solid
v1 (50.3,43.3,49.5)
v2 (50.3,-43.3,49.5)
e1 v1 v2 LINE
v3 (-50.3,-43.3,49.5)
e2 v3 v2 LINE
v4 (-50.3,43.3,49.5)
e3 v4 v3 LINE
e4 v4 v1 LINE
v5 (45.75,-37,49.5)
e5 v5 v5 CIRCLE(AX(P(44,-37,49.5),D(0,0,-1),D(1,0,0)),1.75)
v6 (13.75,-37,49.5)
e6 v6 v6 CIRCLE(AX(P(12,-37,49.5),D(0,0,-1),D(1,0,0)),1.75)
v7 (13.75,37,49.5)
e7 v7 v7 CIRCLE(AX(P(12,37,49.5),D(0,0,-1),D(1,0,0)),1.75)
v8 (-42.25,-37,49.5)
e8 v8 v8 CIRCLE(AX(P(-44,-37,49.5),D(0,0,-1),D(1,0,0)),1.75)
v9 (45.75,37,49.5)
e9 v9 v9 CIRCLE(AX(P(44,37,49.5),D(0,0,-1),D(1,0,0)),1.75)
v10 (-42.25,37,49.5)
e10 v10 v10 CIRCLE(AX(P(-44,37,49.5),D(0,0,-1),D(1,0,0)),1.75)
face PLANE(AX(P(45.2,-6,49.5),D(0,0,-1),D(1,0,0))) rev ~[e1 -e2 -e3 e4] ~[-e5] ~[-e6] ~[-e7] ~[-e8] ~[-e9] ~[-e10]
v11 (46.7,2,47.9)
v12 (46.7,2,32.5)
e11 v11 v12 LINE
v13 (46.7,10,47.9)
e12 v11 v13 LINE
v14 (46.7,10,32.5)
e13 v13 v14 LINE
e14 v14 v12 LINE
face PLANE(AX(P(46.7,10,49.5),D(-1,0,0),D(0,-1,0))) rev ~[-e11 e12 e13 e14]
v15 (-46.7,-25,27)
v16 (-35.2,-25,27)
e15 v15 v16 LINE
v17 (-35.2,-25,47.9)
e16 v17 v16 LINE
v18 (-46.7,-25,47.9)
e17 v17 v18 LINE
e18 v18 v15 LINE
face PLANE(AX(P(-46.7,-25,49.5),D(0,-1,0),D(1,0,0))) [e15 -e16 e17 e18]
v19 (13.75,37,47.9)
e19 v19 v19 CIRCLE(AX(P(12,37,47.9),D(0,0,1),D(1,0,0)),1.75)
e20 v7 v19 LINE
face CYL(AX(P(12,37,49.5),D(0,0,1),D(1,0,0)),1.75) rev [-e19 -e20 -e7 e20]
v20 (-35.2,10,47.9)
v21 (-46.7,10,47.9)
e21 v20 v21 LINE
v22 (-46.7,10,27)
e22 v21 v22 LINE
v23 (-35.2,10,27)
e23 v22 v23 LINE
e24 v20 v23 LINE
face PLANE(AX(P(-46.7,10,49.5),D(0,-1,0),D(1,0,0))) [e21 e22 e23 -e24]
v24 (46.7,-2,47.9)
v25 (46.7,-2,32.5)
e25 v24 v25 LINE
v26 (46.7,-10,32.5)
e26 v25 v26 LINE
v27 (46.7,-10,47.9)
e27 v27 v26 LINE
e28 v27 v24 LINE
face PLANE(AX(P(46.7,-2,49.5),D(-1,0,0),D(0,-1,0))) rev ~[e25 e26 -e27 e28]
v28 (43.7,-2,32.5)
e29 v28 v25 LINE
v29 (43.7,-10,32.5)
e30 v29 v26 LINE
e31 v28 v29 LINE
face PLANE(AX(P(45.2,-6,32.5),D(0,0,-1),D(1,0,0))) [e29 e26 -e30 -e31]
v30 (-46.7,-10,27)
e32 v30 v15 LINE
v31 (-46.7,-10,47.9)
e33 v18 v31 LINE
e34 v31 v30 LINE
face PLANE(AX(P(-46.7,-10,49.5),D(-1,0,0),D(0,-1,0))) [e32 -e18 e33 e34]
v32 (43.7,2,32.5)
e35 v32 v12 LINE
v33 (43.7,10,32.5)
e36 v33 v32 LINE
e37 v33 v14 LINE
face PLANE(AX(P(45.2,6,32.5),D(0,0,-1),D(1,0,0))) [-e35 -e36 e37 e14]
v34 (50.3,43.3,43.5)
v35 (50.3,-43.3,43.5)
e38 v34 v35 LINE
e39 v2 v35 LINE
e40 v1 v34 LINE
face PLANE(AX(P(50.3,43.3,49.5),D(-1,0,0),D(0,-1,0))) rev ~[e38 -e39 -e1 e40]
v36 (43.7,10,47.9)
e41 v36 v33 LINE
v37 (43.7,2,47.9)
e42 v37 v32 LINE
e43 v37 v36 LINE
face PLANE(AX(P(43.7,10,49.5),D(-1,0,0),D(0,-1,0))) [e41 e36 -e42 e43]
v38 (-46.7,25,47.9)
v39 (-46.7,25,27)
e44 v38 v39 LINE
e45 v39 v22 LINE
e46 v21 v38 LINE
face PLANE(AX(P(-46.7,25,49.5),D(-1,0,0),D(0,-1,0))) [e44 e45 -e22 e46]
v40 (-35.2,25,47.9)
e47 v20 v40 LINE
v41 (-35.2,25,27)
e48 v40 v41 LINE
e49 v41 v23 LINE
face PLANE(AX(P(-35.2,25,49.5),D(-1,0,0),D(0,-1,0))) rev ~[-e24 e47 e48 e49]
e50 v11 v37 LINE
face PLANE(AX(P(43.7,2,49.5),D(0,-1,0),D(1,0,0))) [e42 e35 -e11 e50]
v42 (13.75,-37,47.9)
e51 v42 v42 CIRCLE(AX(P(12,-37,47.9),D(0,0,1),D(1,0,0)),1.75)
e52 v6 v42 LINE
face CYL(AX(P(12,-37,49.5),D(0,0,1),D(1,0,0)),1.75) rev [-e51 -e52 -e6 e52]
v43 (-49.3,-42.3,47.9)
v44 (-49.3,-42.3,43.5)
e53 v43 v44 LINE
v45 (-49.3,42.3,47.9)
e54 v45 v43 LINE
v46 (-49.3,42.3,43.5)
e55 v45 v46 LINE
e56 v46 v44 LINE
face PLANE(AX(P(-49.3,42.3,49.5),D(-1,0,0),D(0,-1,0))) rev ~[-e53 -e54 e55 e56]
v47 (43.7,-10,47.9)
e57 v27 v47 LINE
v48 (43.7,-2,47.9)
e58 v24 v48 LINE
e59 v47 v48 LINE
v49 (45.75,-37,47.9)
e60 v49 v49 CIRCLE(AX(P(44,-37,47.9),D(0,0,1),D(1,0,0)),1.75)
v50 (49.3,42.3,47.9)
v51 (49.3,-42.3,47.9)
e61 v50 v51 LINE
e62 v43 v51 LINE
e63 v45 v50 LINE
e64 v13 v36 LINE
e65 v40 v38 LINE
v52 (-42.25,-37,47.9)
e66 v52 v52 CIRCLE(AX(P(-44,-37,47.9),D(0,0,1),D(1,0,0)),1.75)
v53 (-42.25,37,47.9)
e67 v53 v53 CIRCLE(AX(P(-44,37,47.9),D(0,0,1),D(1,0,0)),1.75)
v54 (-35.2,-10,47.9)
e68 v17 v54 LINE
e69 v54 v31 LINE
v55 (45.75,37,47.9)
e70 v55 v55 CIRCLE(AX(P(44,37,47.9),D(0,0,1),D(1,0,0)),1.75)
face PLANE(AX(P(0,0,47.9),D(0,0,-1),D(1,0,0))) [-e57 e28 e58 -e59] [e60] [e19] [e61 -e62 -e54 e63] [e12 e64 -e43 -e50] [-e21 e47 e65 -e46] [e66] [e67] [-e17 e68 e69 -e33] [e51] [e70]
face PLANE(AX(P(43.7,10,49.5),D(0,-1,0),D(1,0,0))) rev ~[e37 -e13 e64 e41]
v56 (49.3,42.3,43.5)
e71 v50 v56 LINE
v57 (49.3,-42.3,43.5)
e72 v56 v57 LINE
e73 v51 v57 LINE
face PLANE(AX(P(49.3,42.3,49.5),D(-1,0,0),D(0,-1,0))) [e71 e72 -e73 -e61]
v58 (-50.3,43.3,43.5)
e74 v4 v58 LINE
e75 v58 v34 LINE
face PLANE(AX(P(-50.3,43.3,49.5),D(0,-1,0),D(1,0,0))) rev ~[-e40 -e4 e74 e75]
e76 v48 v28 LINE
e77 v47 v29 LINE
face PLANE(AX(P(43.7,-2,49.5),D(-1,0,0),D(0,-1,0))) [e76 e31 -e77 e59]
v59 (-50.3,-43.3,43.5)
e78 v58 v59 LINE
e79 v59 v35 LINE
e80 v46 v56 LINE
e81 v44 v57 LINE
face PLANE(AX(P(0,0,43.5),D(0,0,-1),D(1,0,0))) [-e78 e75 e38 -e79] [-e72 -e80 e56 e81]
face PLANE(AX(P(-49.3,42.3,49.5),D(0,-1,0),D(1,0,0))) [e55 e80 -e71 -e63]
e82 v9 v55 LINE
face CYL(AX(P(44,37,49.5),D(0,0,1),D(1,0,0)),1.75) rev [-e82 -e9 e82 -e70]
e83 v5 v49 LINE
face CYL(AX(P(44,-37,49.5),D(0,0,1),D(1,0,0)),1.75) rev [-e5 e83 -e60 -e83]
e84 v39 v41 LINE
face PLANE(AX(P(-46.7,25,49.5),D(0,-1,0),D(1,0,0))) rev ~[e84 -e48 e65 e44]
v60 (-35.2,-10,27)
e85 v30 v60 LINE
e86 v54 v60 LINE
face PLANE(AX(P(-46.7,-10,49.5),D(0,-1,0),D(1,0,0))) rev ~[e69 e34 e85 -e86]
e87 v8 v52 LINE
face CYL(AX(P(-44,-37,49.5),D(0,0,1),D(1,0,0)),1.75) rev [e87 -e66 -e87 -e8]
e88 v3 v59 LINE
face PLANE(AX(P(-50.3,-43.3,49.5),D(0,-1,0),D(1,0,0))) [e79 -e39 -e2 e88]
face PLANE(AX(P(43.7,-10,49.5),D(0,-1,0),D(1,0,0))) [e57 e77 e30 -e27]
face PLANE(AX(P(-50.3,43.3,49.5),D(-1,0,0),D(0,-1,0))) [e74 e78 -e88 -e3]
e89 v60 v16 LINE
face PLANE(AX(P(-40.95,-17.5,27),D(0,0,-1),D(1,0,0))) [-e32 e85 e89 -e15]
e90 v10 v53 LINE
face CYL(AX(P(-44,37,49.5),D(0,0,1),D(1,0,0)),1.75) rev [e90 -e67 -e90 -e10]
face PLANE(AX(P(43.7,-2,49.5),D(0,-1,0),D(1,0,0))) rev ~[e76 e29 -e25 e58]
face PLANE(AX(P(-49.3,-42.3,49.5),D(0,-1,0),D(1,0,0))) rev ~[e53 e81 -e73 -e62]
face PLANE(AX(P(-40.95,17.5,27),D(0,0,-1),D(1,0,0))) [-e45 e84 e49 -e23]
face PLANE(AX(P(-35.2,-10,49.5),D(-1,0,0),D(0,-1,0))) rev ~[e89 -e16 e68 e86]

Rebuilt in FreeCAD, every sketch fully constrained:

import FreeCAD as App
import Part
import Sketcher
from FreeCAD import Vector

doc = App.newDocument("Part")
body = doc.addObject("PartDesign::Body", "Body")

# Sketch on XY plane
sketch1 = doc.addObject("Sketcher::SketchObject", "Sketch")
body.addObject(sketch1)
sketch1.AttachmentSupport = (doc.XY_Plane, [""])
sketch1.MapMode = "FlatFace"
sketch1.addGeometry([
    Part.LineSegment(Vector(-49, 42, 0), Vector(-49, -42, 0)),
    Part.LineSegment(Vector(-49, -42, 0), Vector(49, -42, 0)),
    Part.LineSegment(Vector(49, -42, 0), Vector(49, 42, 0)),
    Part.LineSegment(Vector(49, 42, 0), Vector(-49, 42, 0)),
], False)
sketch1.addConstraint([
    Sketcher.Constraint("Coincident", 0, 2, 1, 1),
    Sketcher.Constraint("Coincident", 1, 2, 2, 1),
    Sketcher.Constraint("Coincident", 2, 2, 3, 1),
    Sketcher.Constraint("Coincident", 3, 2, 0, 1),
    Sketcher.Constraint("Vertical", 0),
    Sketcher.Constraint("Horizontal", 1),
    Sketcher.Constraint("Vertical", 2),
    Sketcher.Constraint("Horizontal", 3),
    Sketcher.Constraint("Symmetric", 0, 2, 2, 2, -1, 1),
    Sketcher.Constraint("DistanceX", 1, 1, 1, 2, 98.6),
    Sketcher.Constraint("DistanceY", 0, 2, 0, 1, 84.6),
])
pad1 = doc.addObject("PartDesign::Pad", "Pad")
body.addObject(pad1)
pad1.Profile = sketch1
pad1.Length = 1.6

# Sketch on XY plane
sketch2 = doc.addObject("Sketcher::SketchObject", "Sketch001")
body.addObject(sketch2)
sketch2.AttachmentSupport = (doc.XY_Plane, [""])
sketch2.MapMode = "FlatFace"
sketch2.addGeometry([
    Part.LineSegment(Vector(-50, 43, 0), Vector(-50, -43, 0)),  # 0
    Part.LineSegment(Vector(-50, -43, 0), Vector(50, -43, 0)),  # 1
    Part.LineSegment(Vector(50, -43, 0), Vector(50, 43, 0)),  # 2
    Part.LineSegment(Vector(50, 43, 0), Vector(-50, 43, 0)),  # 3
    Part.LineSegment(Vector(49, -42, 0), Vector(-49, -42, 0)),  # 4
    Part.LineSegment(Vector(-49, -42, 0), Vector(-49, 42, 0)),  # 5
    Part.LineSegment(Vector(-49, 42, 0), Vector(49, 42, 0)),  # 6
    Part.LineSegment(Vector(49, 42, 0), Vector(49, -42, 0)),  # 7
], False)
sketch2.addConstraint([
    Sketcher.Constraint("Coincident", 0, 2, 1, 1),
    Sketcher.Constraint("Coincident", 1, 2, 2, 1),
    Sketcher.Constraint("Coincident", 2, 2, 3, 1),
    Sketcher.Constraint("Coincident", 3, 2, 0, 1),
    Sketcher.Constraint("Coincident", 4, 2, 5, 1),
    Sketcher.Constraint("Coincident", 5, 2, 6, 1),
    Sketcher.Constraint("Coincident", 6, 2, 7, 1),
    Sketcher.Constraint("Coincident", 7, 2, 4, 1),
    Sketcher.Constraint("Vertical", 0),
    Sketcher.Constraint("Horizontal", 1),
    Sketcher.Constraint("Vertical", 2),
    Sketcher.Constraint("Horizontal", 3),
    Sketcher.Constraint("Horizontal", 4),
    Sketcher.Constraint("Vertical", 5),
    Sketcher.Constraint("Horizontal", 6),
    Sketcher.Constraint("Vertical", 7),
    Sketcher.Constraint("Symmetric", 0, 2, 2, 2, -1, 1),
    Sketcher.Constraint("Symmetric", 4, 2, 6, 2, -1, 1),
    Sketcher.Constraint("DistanceX", 1, 1, 1, 2, 100.6),
    Sketcher.Constraint("DistanceX", 4, 2, 4, 1, 98.6),
    Sketcher.Constraint("DistanceY", 0, 2, 0, 1, 86.6),
    Sketcher.Constraint("DistanceY", 5, 1, 5, 2, 84.6),
])
pad2 = doc.addObject("PartDesign::Pad", "Pad001")
body.addObject(pad2)
pad2.Profile = sketch2
pad2.Length = 6

# Sketch on XY plane
sketch3 = doc.addObject("Sketcher::SketchObject", "Sketch002")
body.addObject(sketch3)
sketch3.AttachmentSupport = (doc.XY_Plane, [""])
sketch3.MapMode = "FlatFace"
sketch3.addGeometry([
    Part.LineSegment(Vector(-47, 25, 0), Vector(-47, 10, 0)),  # 0
    Part.LineSegment(Vector(-47, 10, 0), Vector(-35, 10, 0)),  # 1
    Part.LineSegment(Vector(-35, 10, 0), Vector(-35, 25, 0)),  # 2
    Part.LineSegment(Vector(-35, 25, 0), Vector(-47, 25, 0)),  # 3
    Part.LineSegment(Vector(-47, -10, 0), Vector(-47, -25, 0)),  # 4
    Part.LineSegment(Vector(-47, -25, 0), Vector(-35, -25, 0)),  # 5
    Part.LineSegment(Vector(-35, -25, 0), Vector(-35, -10, 0)),  # 6
    Part.LineSegment(Vector(-35, -10, 0), Vector(-47, -10, 0)),  # 7
], False)
sketch3.addConstraint([
    Sketcher.Constraint("Coincident", 0, 2, 1, 1),
    Sketcher.Constraint("Coincident", 1, 2, 2, 1),
    Sketcher.Constraint("Coincident", 2, 2, 3, 1),
    Sketcher.Constraint("Coincident", 3, 2, 0, 1),
    Sketcher.Constraint("Coincident", 4, 2, 5, 1),
    Sketcher.Constraint("Coincident", 5, 2, 6, 1),
    Sketcher.Constraint("Coincident", 6, 2, 7, 1),
    Sketcher.Constraint("Coincident", 7, 2, 4, 1),
    Sketcher.Constraint("Vertical", 0),
    Sketcher.Constraint("Horizontal", 1),
    Sketcher.Constraint("Vertical", 2),
    Sketcher.Constraint("Horizontal", 3),
    Sketcher.Constraint("Vertical", 4),
    Sketcher.Constraint("Horizontal", 5),
    Sketcher.Constraint("Vertical", 6),
    Sketcher.Constraint("Horizontal", 7),
    Sketcher.Constraint("Symmetric", 3, 2, 4, 2, -1),
    Sketcher.Constraint("Symmetric", 1, 2, 6, 2, -1),
    Sketcher.Constraint("DistanceY", 0, 2, 0, 1, 15.0),
    Sketcher.Constraint("DistanceX", 1, 1, 1, 2, 11.5),
    Sketcher.Constraint("DistanceY", -1, 1, 0, 2, 10.0),
    Sketcher.Constraint("DistanceX", 0, 2, -1, 1, 46.7),
])
pad3 = doc.addObject("PartDesign::Pad", "Pad002")
body.addObject(pad3)
pad3.Profile = sketch3
pad3.Length = 22.5

# Sketch on XY plane
sketch4 = doc.addObject("Sketcher::SketchObject", "Sketch003")
body.addObject(sketch4)
sketch4.AttachmentSupport = (doc.XY_Plane, [""])
sketch4.MapMode = "FlatFace"
sketch4.addGeometry([
    Part.LineSegment(Vector(43.7, 10, 0), Vector(43.7, 2, 0)),  # 0
    Part.LineSegment(Vector(43.7, 2, 0), Vector(46.7, 2, 0)),  # 1
    Part.LineSegment(Vector(46.7, 2, 0), Vector(46.7, 10, 0)),  # 2
    Part.LineSegment(Vector(46.7, 10, 0), Vector(43.7, 10, 0)),  # 3
    Part.LineSegment(Vector(43.7, -2, 0), Vector(43.7, -10, 0)),  # 4
    Part.LineSegment(Vector(43.7, -10, 0), Vector(46.7, -10, 0)),  # 5
    Part.LineSegment(Vector(46.7, -10, 0), Vector(46.7, -2, 0)),  # 6
    Part.LineSegment(Vector(46.7, -2, 0), Vector(43.7, -2, 0)),  # 7
], False)
sketch4.addConstraint([
    Sketcher.Constraint("Coincident", 0, 2, 1, 1),
    Sketcher.Constraint("Coincident", 1, 2, 2, 1),
    Sketcher.Constraint("Coincident", 2, 2, 3, 1),
    Sketcher.Constraint("Coincident", 3, 2, 0, 1),
    Sketcher.Constraint("Coincident", 4, 2, 5, 1),
    Sketcher.Constraint("Coincident", 5, 2, 6, 1),
    Sketcher.Constraint("Coincident", 6, 2, 7, 1),
    Sketcher.Constraint("Coincident", 7, 2, 4, 1),
    Sketcher.Constraint("Vertical", 0),
    Sketcher.Constraint("Horizontal", 1),
    Sketcher.Constraint("Vertical", 2),
    Sketcher.Constraint("Horizontal", 3),
    Sketcher.Constraint("Vertical", 4),
    Sketcher.Constraint("Horizontal", 5),
    Sketcher.Constraint("Vertical", 6),
    Sketcher.Constraint("Horizontal", 7),
    Sketcher.Constraint("Symmetric", 3, 2, 4, 2, -1),
    Sketcher.Constraint("Symmetric", 1, 2, 6, 2, -1),
    Sketcher.Constraint("DistanceX", 1, 1, 1, 2, 3.0),
    Sketcher.Constraint("DistanceY", 0, 2, 0, 1, 8.0),
    Sketcher.Constraint("DistanceY", -1, 1, 0, 2, 2.0),
    Sketcher.Constraint("DistanceX", -1, 1, 0, 2, 43.7),
])
pad4 = doc.addObject("PartDesign::Pad", "Pad003")
body.addObject(pad4)
pad4.Profile = sketch4
pad4.Length = 17

# Sketch on XY plane
sketch5 = doc.addObject("Sketcher::SketchObject", "Sketch004")
body.addObject(sketch5)
sketch5.AttachmentSupport = (doc.XY_Plane, [""])
sketch5.MapMode = "FlatFace"
sketch5.addGeometry([
    Part.Circle(Vector(-44, 37, 0), Vector(0, 0, 1), 1.8),  # 0
    Part.Circle(Vector(12, 37, 0), Vector(0, 0, 1), 1.8),  # 1
    Part.Circle(Vector(44, 37, 0), Vector(0, 0, 1), 1.8),  # 2
    Part.Circle(Vector(44, -37, 0), Vector(0, 0, 1), 1.8),  # 3
    Part.Circle(Vector(12, -37, 0), Vector(0, 0, 1), 1.8),  # 4
    Part.Circle(Vector(-44, -37, 0), Vector(0, 0, 1), 1.8),  # 5
], False)
sketch5.addConstraint([
    Sketcher.Constraint("Equal", 0, 1),
    Sketcher.Constraint("Equal", 1, 2),
    Sketcher.Constraint("Equal", 2, 3),
    Sketcher.Constraint("Equal", 3, 4),
    Sketcher.Constraint("Equal", 4, 5),
    Sketcher.Constraint("Symmetric", 0, 3, 3, 3, -1, 1),
    Sketcher.Constraint("Symmetric", 2, 3, 5, 3, -1, 1),
    Sketcher.Constraint("Symmetric", 0, 3, 2, 3, -2),
    Sketcher.Constraint("Symmetric", 1, 3, 4, 3, -1),
    Sketcher.Constraint("Horizontal", 0, 3, 1, 3),
    Sketcher.Constraint("Diameter", 0, 3.5),
    Sketcher.Constraint("DistanceX", 0, 3, -1, 1, 44.0),
    Sketcher.Constraint("DistanceY", -1, 1, 0, 3, 37.0),
    Sketcher.Constraint("DistanceX", -1, 1, 1, 3, 12.0),
])
pocket1 = doc.addObject("PartDesign::Pocket", "Pocket")
body.addObject(pocket1)
pocket1.Profile = sketch5
pocket1.Length = 5
pocket1.Reversed = True
body2 = doc.addObject("PartDesign::Body", "Body001")
doc.recompute()

body.Placement = App.Placement(Vector(0, 0, 49.5), App.Rotation(Vector(1, 0, 0), 180))
boolean = doc.addObject("PartDesign::Boolean", "Boolean")
body2.addObject(boolean)
boolean.Type = "Fuse"
boolean.addObjects([body])

doc.recompute()
